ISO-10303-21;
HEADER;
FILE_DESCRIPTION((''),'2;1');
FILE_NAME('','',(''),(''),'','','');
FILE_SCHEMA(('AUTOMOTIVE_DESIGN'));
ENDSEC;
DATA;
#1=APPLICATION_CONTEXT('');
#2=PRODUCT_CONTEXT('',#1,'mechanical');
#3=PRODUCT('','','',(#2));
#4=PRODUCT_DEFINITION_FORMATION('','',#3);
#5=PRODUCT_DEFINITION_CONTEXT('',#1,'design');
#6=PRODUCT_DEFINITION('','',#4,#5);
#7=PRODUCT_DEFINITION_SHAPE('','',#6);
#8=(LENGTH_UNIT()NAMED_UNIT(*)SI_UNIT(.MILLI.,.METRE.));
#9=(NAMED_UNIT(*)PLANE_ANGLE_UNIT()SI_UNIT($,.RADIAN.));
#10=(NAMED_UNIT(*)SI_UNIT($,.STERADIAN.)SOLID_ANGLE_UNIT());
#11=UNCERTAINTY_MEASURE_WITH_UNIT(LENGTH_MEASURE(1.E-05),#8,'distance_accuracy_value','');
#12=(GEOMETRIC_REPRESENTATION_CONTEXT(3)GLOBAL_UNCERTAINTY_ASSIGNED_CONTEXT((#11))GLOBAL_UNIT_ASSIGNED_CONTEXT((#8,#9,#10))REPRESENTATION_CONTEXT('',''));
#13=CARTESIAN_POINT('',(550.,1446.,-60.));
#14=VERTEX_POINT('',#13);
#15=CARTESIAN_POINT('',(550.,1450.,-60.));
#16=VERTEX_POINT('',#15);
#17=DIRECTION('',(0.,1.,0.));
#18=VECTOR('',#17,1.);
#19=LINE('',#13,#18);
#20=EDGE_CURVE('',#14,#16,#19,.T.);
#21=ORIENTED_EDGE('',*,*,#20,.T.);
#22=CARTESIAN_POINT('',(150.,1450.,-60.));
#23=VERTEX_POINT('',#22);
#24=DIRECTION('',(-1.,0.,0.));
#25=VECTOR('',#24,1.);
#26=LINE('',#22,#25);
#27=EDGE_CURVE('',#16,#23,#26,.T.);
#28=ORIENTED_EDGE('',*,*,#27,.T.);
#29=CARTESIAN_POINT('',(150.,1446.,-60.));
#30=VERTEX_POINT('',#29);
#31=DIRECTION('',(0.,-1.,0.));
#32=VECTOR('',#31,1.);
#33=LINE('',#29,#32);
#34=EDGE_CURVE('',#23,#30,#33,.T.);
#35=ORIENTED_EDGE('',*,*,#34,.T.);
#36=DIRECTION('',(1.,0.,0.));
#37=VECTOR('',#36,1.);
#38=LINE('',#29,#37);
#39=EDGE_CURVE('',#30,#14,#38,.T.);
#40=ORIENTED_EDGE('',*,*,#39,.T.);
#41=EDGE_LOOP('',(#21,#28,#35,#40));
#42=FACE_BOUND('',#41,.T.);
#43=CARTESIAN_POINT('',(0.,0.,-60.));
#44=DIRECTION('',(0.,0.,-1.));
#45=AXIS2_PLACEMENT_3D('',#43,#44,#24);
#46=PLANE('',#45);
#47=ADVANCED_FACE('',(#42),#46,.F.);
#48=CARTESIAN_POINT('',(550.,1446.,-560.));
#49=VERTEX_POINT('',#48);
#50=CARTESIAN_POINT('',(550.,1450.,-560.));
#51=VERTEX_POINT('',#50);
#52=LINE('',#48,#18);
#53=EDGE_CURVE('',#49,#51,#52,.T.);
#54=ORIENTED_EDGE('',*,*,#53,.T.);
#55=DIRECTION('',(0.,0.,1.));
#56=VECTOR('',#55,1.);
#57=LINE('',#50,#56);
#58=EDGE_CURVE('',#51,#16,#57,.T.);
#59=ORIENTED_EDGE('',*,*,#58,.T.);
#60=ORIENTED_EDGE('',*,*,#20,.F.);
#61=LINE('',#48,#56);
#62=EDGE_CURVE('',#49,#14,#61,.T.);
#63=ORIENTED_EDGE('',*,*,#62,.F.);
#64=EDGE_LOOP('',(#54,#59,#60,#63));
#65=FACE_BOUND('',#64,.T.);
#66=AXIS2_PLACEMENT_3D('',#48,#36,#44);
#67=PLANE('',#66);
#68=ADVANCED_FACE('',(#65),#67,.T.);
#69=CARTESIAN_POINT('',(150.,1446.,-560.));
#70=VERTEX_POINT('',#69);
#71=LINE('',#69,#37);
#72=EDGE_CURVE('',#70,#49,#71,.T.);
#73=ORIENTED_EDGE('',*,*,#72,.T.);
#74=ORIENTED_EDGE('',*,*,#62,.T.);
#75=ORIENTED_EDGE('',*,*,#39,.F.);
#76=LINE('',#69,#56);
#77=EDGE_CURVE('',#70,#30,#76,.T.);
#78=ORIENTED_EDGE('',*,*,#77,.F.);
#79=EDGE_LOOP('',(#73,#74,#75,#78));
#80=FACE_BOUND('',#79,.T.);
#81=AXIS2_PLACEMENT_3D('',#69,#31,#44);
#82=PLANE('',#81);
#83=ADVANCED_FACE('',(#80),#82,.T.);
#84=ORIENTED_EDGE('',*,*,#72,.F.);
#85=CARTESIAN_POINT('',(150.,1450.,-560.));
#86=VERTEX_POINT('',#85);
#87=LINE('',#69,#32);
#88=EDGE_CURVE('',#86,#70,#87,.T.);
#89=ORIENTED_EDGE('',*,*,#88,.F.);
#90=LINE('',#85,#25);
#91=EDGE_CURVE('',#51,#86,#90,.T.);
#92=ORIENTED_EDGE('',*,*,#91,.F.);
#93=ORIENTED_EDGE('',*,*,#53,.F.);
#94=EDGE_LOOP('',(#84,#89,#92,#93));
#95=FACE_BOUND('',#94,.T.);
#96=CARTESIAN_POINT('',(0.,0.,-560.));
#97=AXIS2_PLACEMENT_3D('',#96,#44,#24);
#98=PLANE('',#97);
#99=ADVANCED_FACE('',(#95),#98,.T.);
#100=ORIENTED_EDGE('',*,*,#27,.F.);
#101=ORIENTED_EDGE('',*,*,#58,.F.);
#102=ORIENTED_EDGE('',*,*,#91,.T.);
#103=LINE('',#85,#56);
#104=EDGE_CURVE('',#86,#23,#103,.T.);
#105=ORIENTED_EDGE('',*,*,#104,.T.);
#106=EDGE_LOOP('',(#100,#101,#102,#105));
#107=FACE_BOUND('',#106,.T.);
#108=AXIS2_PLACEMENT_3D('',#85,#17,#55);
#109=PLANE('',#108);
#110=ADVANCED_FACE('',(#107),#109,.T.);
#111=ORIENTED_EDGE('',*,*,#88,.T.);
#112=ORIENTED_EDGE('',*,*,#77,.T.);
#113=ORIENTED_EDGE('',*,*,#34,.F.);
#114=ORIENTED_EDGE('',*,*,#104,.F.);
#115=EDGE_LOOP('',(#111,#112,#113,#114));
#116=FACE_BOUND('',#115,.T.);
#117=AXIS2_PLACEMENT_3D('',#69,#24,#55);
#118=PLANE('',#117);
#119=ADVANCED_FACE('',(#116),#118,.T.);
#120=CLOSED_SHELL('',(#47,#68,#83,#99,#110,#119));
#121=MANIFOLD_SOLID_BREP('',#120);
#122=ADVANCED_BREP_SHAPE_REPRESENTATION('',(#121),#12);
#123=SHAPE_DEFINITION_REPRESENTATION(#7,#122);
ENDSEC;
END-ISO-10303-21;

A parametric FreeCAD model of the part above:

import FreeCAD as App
import Part
import Sketcher

V = App.Vector


def add_polygon(sketch, points):
    """Adds a closed chain of lines whose ends are joined by coincident constraints."""
    first, n = sketch.GeometryCount, len(points)
    for a, b in zip(points, points[1:] + points[:1]):
        sketch.addGeometry(Part.LineSegment(App.Vector(*a, 0), App.Vector(*b, 0)), False)
    for i in range(n):
        sketch.addConstraint(Sketcher.Constraint("Coincident", first + i, 2, first + (i + 1) % n, 1))

doc = App.newDocument("Part")
params = doc.addObject("Spreadsheet::Sheet", "Params")
for row, (alias, value) in enumerate([
    ("sketch1_width", "400 mm"),
    ("sketch1_height", "4 mm"),
    ("pad1_length", "500 mm"),
], start=1):
    params.set(f"A{row}", alias)
    params.set(f"B{row}", "=" + value)
    params.setAlias(f"B{row}", alias)

body = doc.addObject("PartDesign::Body", "Body")

# Sketch on XY plane
sketch1 = body.newObject("Sketcher::SketchObject", "Sketch")
sketch1.AttachmentSupport = (doc.getObject("XY_Plane"), [""])
sketch1.MapMode = "FlatFace"
sketch1.AttachmentOffset = App.Placement(V(0, 0, -60), App.Rotation())
add_polygon(sketch1, [(150, 1450), (150, 1446), (550, 1446), (550, 1450)])  # lines 0-3
sketch1.addConstraint(Sketcher.Constraint("Vertical", 0))
sketch1.addConstraint(Sketcher.Constraint("Horizontal", 1))
sketch1.addConstraint(Sketcher.Constraint("Vertical", 2))
sketch1.addConstraint(Sketcher.Constraint("Horizontal", 3))
sketch1.addConstraint(Sketcher.Constraint("DistanceX", 1, 1, 1, 2, 400.0))
sketch1.addConstraint(Sketcher.Constraint("DistanceY", 0, 2, 0, 1, 4.0))
sketch1.addConstraint(Sketcher.Constraint("DistanceX", -1, 1, 0, 2, 150.0))
sketch1.addConstraint(Sketcher.Constraint("DistanceY", -1, 1, 0, 2, 1446.0))
sketch1.setExpression("Constraints[8]", "Params.sketch1_width")
sketch1.setExpression("Constraints[9]", "Params.sketch1_height")
pad1 = body.newObject("PartDesign::Pad", "Pad")
pad1.Profile = sketch1
pad1.setExpression("Length", "Params.pad1_length")
pad1.Reversed = True

doc.recompute()
